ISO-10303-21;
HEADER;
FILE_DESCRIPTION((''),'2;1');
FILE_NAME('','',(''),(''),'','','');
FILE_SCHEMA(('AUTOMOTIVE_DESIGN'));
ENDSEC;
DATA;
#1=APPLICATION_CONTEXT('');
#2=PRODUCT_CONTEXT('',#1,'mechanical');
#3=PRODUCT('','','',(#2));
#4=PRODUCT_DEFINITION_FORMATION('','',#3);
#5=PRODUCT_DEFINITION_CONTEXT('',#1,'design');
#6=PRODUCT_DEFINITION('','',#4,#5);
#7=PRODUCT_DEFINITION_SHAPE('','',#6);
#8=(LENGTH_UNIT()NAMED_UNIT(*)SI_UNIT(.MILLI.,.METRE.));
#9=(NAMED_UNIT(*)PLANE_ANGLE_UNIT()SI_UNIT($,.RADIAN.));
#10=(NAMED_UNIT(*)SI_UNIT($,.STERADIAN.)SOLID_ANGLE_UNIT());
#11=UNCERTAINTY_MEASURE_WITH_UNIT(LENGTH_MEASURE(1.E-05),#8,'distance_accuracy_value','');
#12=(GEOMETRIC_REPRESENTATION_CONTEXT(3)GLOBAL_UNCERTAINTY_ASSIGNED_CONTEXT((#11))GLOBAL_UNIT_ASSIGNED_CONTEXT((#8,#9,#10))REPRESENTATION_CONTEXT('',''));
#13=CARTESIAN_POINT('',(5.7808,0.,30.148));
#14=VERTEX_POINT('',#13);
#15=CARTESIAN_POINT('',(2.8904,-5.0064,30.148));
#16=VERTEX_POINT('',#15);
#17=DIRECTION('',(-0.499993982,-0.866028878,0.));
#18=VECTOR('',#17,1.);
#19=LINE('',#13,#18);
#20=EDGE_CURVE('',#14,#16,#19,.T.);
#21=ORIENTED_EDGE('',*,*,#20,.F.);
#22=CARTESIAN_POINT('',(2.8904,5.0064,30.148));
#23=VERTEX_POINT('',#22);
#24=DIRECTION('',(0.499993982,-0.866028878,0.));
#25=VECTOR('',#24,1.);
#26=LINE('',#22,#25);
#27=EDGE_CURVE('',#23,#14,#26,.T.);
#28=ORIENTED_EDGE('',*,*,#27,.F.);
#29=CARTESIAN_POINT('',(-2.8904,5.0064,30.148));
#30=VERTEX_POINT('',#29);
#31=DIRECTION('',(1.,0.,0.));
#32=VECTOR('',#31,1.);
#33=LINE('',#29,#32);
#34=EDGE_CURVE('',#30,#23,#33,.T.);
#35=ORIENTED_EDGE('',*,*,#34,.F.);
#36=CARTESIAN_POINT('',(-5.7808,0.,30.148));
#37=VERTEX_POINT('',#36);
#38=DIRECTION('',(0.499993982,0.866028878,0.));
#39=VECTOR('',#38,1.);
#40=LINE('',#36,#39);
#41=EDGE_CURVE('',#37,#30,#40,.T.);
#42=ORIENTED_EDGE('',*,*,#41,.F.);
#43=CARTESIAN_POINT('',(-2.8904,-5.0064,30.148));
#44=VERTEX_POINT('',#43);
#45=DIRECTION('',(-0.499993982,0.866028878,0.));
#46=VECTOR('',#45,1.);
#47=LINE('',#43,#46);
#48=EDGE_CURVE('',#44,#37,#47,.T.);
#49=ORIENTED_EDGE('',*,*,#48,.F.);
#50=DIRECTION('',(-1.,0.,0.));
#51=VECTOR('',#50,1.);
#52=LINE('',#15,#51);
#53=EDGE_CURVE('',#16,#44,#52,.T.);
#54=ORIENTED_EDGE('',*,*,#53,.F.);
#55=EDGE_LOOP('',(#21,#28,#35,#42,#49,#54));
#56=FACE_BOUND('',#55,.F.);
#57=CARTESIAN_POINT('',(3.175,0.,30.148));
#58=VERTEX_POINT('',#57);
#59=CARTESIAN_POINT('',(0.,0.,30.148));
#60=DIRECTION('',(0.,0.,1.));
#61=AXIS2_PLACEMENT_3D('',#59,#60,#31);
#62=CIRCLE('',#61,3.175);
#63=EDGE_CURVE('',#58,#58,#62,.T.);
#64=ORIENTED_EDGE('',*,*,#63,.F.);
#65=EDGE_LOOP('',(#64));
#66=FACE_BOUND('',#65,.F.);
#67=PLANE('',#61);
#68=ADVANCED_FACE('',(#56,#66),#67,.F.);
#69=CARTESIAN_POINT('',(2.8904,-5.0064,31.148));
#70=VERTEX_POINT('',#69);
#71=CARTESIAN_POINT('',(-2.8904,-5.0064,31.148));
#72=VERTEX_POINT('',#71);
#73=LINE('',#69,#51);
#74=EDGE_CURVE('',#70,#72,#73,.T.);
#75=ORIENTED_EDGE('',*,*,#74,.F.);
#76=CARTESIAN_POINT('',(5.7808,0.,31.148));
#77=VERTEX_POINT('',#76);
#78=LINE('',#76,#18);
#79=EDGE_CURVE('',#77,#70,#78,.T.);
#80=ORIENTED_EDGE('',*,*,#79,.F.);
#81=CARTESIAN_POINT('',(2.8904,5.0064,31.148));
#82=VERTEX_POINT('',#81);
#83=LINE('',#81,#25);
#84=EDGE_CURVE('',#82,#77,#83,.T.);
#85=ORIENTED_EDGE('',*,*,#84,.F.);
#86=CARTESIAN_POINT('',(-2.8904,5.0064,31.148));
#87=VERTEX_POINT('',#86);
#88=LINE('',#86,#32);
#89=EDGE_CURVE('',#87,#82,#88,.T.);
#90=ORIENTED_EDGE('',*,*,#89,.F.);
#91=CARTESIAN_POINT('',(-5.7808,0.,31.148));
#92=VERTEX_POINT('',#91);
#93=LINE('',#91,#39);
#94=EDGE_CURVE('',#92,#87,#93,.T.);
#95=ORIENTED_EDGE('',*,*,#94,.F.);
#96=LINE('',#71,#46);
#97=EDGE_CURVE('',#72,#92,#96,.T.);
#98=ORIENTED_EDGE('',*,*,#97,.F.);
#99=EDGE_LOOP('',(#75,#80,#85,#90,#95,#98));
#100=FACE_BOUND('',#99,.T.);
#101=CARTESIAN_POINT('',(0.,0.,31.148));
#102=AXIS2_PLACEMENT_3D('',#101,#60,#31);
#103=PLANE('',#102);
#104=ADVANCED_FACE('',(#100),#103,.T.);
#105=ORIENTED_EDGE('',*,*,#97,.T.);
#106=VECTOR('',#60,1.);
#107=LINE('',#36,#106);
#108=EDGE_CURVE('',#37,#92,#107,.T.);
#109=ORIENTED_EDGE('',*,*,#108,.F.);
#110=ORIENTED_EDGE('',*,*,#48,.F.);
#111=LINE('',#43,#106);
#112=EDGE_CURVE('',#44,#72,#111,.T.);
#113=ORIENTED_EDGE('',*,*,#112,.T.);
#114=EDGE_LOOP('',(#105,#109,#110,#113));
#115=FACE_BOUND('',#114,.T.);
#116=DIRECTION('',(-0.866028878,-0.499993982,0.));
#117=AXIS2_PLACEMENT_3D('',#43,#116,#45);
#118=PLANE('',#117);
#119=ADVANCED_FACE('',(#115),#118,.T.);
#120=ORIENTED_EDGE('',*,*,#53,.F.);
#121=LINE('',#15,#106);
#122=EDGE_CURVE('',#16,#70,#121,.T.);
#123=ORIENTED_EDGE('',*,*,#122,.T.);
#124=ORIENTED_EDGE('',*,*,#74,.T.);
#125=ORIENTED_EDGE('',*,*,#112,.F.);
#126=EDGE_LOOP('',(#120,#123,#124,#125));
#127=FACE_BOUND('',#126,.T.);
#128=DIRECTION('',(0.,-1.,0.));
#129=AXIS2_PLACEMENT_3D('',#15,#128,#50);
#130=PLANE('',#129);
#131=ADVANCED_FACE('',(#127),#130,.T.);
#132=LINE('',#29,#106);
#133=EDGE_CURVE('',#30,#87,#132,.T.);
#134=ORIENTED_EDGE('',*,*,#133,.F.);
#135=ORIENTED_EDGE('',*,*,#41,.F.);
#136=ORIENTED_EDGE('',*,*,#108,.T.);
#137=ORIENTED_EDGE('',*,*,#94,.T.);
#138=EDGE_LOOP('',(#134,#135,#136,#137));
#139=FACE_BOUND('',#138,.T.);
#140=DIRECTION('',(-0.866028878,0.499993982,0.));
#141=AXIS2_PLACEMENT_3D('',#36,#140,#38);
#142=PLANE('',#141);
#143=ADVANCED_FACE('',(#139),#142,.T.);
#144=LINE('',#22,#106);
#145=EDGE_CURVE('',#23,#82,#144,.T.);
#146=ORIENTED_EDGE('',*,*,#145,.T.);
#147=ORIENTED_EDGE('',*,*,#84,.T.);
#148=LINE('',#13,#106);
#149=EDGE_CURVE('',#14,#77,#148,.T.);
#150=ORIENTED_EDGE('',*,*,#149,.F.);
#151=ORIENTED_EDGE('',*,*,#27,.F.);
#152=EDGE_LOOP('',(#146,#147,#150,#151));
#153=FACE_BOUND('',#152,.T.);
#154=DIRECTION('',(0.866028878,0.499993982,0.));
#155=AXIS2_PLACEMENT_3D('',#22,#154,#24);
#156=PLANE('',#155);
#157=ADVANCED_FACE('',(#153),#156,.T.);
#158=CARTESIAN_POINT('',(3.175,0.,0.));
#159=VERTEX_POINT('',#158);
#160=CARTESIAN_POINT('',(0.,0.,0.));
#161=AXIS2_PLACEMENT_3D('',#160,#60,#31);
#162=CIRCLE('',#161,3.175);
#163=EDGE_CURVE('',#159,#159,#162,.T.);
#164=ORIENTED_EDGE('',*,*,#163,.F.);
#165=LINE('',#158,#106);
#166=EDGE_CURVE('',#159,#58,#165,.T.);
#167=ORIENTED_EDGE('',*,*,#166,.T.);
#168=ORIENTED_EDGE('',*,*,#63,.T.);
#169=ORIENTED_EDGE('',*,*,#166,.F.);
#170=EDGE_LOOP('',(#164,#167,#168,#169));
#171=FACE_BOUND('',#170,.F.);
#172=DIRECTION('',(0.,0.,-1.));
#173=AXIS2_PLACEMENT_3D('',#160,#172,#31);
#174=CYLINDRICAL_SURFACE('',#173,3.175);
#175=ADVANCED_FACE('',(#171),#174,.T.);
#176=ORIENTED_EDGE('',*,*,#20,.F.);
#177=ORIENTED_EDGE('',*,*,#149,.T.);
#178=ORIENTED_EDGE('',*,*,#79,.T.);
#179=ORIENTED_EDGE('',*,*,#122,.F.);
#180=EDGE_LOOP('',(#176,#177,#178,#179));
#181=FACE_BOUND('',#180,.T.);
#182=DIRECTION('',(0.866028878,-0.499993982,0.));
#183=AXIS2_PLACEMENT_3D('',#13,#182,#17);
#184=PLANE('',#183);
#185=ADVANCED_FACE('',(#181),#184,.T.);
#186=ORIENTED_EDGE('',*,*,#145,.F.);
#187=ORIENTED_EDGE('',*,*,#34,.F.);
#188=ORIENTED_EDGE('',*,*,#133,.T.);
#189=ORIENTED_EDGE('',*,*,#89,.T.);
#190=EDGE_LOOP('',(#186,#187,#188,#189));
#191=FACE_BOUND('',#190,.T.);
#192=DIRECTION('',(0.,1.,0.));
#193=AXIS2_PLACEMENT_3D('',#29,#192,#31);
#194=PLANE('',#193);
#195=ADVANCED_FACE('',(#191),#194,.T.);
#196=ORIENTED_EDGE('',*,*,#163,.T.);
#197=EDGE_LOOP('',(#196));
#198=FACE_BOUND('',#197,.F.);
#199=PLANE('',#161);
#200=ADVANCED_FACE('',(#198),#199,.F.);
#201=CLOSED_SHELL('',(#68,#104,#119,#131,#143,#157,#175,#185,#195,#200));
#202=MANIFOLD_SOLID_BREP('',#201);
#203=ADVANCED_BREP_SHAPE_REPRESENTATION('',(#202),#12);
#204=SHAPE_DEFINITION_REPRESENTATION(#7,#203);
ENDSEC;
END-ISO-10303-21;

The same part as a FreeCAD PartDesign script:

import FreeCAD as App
import Part
import Sketcher
from FreeCAD import Vector
Q = App.Units.Quantity


def add_polygon(sketch, points):
    """Adds a closed chain of lines whose ends are joined by coincident constraints."""
    first, n = sketch.GeometryCount, len(points)
    for a, b in zip(points, points[1:] + points[:1]):
        sketch.addGeometry(Part.LineSegment(App.Vector(*a, 0), App.Vector(*b, 0)), False)
    for i in range(n):
        sketch.addConstraint(Sketcher.Constraint("Coincident", first + i, 2, first + (i + 1) % n, 1))

doc = App.newDocument("Part")
body = doc.addObject("PartDesign::Body", "Body")

# Sketch on XY plane
sketch1 = doc.addObject("Sketcher::SketchObject", "Sketch")
body.addObject(sketch1)
sketch1.AttachmentSupport = (doc.XY_Plane, [""])
sketch1.MapMode = "FlatFace"
sketch1.addGeometry(Part.Circle(Vector(0, 0, 0), Vector(0, 0, 1), 3.2), False)
sketch1.addConstraint(Sketcher.Constraint("Coincident", 0, 3, -1, 1))
sketch1.addConstraint(Sketcher.Constraint("Diameter", 0, Q("6.35 mm")))
pad1 = doc.addObject("PartDesign::Pad", "Pad")
body.addObject(pad1)
pad1.Profile = sketch1
pad1.Length = 30.148

# Sketch on XY plane
sketch2 = doc.addObject("Sketcher::SketchObject", "Sketch001")
body.addObject(sketch2)
sketch2.AttachmentSupport = (doc.XY_Plane, [""])
sketch2.MapMode = "FlatFace"
sketch2.AttachmentOffset = App.Placement(Vector(0, 0, 30.148), App.Rotation())
add_polygon(sketch2, [(3, -5), (6, 0), (3, 5), (-3, 5), (-6, 0), (-3, -5)])  # lines 0-5
sketch2.addConstraint(Sketcher.Constraint("Horizontal", 2))
sketch2.addConstraint(Sketcher.Constraint("Horizontal", 5))
sketch2.addConstraint(Sketcher.Constraint("Symmetric", 0, 2, 3, 2, -1, 1))
sketch2.addConstraint(Sketcher.Constraint("Symmetric", 1, 2, 4, 2, -1, 1))
sketch2.addConstraint(Sketcher.Constraint("PointOnObject", 0, 2, -1))
sketch2.addConstraint(Sketcher.Constraint("Parallel", 0, 3))
sketch2.addConstraint(Sketcher.Constraint("Vertical", 2, 2, 4, 2))
sketch2.addConstraint(Sketcher.Constraint("Angle", 0, Q("60.0004 deg")))
sketch2.addConstraint(Sketcher.Constraint("DistanceX", 2, 2, 2, 1, Q("5.7808 mm")))
sketch2.addConstraint(Sketcher.Constraint("Distance", 0, Q("5.7809 mm")))
pad2 = doc.addObject("PartDesign::Pad", "Pad001")
body.addObject(pad2)
pad2.Profile = sketch2
pad2.Length = 1

doc.recompute()
